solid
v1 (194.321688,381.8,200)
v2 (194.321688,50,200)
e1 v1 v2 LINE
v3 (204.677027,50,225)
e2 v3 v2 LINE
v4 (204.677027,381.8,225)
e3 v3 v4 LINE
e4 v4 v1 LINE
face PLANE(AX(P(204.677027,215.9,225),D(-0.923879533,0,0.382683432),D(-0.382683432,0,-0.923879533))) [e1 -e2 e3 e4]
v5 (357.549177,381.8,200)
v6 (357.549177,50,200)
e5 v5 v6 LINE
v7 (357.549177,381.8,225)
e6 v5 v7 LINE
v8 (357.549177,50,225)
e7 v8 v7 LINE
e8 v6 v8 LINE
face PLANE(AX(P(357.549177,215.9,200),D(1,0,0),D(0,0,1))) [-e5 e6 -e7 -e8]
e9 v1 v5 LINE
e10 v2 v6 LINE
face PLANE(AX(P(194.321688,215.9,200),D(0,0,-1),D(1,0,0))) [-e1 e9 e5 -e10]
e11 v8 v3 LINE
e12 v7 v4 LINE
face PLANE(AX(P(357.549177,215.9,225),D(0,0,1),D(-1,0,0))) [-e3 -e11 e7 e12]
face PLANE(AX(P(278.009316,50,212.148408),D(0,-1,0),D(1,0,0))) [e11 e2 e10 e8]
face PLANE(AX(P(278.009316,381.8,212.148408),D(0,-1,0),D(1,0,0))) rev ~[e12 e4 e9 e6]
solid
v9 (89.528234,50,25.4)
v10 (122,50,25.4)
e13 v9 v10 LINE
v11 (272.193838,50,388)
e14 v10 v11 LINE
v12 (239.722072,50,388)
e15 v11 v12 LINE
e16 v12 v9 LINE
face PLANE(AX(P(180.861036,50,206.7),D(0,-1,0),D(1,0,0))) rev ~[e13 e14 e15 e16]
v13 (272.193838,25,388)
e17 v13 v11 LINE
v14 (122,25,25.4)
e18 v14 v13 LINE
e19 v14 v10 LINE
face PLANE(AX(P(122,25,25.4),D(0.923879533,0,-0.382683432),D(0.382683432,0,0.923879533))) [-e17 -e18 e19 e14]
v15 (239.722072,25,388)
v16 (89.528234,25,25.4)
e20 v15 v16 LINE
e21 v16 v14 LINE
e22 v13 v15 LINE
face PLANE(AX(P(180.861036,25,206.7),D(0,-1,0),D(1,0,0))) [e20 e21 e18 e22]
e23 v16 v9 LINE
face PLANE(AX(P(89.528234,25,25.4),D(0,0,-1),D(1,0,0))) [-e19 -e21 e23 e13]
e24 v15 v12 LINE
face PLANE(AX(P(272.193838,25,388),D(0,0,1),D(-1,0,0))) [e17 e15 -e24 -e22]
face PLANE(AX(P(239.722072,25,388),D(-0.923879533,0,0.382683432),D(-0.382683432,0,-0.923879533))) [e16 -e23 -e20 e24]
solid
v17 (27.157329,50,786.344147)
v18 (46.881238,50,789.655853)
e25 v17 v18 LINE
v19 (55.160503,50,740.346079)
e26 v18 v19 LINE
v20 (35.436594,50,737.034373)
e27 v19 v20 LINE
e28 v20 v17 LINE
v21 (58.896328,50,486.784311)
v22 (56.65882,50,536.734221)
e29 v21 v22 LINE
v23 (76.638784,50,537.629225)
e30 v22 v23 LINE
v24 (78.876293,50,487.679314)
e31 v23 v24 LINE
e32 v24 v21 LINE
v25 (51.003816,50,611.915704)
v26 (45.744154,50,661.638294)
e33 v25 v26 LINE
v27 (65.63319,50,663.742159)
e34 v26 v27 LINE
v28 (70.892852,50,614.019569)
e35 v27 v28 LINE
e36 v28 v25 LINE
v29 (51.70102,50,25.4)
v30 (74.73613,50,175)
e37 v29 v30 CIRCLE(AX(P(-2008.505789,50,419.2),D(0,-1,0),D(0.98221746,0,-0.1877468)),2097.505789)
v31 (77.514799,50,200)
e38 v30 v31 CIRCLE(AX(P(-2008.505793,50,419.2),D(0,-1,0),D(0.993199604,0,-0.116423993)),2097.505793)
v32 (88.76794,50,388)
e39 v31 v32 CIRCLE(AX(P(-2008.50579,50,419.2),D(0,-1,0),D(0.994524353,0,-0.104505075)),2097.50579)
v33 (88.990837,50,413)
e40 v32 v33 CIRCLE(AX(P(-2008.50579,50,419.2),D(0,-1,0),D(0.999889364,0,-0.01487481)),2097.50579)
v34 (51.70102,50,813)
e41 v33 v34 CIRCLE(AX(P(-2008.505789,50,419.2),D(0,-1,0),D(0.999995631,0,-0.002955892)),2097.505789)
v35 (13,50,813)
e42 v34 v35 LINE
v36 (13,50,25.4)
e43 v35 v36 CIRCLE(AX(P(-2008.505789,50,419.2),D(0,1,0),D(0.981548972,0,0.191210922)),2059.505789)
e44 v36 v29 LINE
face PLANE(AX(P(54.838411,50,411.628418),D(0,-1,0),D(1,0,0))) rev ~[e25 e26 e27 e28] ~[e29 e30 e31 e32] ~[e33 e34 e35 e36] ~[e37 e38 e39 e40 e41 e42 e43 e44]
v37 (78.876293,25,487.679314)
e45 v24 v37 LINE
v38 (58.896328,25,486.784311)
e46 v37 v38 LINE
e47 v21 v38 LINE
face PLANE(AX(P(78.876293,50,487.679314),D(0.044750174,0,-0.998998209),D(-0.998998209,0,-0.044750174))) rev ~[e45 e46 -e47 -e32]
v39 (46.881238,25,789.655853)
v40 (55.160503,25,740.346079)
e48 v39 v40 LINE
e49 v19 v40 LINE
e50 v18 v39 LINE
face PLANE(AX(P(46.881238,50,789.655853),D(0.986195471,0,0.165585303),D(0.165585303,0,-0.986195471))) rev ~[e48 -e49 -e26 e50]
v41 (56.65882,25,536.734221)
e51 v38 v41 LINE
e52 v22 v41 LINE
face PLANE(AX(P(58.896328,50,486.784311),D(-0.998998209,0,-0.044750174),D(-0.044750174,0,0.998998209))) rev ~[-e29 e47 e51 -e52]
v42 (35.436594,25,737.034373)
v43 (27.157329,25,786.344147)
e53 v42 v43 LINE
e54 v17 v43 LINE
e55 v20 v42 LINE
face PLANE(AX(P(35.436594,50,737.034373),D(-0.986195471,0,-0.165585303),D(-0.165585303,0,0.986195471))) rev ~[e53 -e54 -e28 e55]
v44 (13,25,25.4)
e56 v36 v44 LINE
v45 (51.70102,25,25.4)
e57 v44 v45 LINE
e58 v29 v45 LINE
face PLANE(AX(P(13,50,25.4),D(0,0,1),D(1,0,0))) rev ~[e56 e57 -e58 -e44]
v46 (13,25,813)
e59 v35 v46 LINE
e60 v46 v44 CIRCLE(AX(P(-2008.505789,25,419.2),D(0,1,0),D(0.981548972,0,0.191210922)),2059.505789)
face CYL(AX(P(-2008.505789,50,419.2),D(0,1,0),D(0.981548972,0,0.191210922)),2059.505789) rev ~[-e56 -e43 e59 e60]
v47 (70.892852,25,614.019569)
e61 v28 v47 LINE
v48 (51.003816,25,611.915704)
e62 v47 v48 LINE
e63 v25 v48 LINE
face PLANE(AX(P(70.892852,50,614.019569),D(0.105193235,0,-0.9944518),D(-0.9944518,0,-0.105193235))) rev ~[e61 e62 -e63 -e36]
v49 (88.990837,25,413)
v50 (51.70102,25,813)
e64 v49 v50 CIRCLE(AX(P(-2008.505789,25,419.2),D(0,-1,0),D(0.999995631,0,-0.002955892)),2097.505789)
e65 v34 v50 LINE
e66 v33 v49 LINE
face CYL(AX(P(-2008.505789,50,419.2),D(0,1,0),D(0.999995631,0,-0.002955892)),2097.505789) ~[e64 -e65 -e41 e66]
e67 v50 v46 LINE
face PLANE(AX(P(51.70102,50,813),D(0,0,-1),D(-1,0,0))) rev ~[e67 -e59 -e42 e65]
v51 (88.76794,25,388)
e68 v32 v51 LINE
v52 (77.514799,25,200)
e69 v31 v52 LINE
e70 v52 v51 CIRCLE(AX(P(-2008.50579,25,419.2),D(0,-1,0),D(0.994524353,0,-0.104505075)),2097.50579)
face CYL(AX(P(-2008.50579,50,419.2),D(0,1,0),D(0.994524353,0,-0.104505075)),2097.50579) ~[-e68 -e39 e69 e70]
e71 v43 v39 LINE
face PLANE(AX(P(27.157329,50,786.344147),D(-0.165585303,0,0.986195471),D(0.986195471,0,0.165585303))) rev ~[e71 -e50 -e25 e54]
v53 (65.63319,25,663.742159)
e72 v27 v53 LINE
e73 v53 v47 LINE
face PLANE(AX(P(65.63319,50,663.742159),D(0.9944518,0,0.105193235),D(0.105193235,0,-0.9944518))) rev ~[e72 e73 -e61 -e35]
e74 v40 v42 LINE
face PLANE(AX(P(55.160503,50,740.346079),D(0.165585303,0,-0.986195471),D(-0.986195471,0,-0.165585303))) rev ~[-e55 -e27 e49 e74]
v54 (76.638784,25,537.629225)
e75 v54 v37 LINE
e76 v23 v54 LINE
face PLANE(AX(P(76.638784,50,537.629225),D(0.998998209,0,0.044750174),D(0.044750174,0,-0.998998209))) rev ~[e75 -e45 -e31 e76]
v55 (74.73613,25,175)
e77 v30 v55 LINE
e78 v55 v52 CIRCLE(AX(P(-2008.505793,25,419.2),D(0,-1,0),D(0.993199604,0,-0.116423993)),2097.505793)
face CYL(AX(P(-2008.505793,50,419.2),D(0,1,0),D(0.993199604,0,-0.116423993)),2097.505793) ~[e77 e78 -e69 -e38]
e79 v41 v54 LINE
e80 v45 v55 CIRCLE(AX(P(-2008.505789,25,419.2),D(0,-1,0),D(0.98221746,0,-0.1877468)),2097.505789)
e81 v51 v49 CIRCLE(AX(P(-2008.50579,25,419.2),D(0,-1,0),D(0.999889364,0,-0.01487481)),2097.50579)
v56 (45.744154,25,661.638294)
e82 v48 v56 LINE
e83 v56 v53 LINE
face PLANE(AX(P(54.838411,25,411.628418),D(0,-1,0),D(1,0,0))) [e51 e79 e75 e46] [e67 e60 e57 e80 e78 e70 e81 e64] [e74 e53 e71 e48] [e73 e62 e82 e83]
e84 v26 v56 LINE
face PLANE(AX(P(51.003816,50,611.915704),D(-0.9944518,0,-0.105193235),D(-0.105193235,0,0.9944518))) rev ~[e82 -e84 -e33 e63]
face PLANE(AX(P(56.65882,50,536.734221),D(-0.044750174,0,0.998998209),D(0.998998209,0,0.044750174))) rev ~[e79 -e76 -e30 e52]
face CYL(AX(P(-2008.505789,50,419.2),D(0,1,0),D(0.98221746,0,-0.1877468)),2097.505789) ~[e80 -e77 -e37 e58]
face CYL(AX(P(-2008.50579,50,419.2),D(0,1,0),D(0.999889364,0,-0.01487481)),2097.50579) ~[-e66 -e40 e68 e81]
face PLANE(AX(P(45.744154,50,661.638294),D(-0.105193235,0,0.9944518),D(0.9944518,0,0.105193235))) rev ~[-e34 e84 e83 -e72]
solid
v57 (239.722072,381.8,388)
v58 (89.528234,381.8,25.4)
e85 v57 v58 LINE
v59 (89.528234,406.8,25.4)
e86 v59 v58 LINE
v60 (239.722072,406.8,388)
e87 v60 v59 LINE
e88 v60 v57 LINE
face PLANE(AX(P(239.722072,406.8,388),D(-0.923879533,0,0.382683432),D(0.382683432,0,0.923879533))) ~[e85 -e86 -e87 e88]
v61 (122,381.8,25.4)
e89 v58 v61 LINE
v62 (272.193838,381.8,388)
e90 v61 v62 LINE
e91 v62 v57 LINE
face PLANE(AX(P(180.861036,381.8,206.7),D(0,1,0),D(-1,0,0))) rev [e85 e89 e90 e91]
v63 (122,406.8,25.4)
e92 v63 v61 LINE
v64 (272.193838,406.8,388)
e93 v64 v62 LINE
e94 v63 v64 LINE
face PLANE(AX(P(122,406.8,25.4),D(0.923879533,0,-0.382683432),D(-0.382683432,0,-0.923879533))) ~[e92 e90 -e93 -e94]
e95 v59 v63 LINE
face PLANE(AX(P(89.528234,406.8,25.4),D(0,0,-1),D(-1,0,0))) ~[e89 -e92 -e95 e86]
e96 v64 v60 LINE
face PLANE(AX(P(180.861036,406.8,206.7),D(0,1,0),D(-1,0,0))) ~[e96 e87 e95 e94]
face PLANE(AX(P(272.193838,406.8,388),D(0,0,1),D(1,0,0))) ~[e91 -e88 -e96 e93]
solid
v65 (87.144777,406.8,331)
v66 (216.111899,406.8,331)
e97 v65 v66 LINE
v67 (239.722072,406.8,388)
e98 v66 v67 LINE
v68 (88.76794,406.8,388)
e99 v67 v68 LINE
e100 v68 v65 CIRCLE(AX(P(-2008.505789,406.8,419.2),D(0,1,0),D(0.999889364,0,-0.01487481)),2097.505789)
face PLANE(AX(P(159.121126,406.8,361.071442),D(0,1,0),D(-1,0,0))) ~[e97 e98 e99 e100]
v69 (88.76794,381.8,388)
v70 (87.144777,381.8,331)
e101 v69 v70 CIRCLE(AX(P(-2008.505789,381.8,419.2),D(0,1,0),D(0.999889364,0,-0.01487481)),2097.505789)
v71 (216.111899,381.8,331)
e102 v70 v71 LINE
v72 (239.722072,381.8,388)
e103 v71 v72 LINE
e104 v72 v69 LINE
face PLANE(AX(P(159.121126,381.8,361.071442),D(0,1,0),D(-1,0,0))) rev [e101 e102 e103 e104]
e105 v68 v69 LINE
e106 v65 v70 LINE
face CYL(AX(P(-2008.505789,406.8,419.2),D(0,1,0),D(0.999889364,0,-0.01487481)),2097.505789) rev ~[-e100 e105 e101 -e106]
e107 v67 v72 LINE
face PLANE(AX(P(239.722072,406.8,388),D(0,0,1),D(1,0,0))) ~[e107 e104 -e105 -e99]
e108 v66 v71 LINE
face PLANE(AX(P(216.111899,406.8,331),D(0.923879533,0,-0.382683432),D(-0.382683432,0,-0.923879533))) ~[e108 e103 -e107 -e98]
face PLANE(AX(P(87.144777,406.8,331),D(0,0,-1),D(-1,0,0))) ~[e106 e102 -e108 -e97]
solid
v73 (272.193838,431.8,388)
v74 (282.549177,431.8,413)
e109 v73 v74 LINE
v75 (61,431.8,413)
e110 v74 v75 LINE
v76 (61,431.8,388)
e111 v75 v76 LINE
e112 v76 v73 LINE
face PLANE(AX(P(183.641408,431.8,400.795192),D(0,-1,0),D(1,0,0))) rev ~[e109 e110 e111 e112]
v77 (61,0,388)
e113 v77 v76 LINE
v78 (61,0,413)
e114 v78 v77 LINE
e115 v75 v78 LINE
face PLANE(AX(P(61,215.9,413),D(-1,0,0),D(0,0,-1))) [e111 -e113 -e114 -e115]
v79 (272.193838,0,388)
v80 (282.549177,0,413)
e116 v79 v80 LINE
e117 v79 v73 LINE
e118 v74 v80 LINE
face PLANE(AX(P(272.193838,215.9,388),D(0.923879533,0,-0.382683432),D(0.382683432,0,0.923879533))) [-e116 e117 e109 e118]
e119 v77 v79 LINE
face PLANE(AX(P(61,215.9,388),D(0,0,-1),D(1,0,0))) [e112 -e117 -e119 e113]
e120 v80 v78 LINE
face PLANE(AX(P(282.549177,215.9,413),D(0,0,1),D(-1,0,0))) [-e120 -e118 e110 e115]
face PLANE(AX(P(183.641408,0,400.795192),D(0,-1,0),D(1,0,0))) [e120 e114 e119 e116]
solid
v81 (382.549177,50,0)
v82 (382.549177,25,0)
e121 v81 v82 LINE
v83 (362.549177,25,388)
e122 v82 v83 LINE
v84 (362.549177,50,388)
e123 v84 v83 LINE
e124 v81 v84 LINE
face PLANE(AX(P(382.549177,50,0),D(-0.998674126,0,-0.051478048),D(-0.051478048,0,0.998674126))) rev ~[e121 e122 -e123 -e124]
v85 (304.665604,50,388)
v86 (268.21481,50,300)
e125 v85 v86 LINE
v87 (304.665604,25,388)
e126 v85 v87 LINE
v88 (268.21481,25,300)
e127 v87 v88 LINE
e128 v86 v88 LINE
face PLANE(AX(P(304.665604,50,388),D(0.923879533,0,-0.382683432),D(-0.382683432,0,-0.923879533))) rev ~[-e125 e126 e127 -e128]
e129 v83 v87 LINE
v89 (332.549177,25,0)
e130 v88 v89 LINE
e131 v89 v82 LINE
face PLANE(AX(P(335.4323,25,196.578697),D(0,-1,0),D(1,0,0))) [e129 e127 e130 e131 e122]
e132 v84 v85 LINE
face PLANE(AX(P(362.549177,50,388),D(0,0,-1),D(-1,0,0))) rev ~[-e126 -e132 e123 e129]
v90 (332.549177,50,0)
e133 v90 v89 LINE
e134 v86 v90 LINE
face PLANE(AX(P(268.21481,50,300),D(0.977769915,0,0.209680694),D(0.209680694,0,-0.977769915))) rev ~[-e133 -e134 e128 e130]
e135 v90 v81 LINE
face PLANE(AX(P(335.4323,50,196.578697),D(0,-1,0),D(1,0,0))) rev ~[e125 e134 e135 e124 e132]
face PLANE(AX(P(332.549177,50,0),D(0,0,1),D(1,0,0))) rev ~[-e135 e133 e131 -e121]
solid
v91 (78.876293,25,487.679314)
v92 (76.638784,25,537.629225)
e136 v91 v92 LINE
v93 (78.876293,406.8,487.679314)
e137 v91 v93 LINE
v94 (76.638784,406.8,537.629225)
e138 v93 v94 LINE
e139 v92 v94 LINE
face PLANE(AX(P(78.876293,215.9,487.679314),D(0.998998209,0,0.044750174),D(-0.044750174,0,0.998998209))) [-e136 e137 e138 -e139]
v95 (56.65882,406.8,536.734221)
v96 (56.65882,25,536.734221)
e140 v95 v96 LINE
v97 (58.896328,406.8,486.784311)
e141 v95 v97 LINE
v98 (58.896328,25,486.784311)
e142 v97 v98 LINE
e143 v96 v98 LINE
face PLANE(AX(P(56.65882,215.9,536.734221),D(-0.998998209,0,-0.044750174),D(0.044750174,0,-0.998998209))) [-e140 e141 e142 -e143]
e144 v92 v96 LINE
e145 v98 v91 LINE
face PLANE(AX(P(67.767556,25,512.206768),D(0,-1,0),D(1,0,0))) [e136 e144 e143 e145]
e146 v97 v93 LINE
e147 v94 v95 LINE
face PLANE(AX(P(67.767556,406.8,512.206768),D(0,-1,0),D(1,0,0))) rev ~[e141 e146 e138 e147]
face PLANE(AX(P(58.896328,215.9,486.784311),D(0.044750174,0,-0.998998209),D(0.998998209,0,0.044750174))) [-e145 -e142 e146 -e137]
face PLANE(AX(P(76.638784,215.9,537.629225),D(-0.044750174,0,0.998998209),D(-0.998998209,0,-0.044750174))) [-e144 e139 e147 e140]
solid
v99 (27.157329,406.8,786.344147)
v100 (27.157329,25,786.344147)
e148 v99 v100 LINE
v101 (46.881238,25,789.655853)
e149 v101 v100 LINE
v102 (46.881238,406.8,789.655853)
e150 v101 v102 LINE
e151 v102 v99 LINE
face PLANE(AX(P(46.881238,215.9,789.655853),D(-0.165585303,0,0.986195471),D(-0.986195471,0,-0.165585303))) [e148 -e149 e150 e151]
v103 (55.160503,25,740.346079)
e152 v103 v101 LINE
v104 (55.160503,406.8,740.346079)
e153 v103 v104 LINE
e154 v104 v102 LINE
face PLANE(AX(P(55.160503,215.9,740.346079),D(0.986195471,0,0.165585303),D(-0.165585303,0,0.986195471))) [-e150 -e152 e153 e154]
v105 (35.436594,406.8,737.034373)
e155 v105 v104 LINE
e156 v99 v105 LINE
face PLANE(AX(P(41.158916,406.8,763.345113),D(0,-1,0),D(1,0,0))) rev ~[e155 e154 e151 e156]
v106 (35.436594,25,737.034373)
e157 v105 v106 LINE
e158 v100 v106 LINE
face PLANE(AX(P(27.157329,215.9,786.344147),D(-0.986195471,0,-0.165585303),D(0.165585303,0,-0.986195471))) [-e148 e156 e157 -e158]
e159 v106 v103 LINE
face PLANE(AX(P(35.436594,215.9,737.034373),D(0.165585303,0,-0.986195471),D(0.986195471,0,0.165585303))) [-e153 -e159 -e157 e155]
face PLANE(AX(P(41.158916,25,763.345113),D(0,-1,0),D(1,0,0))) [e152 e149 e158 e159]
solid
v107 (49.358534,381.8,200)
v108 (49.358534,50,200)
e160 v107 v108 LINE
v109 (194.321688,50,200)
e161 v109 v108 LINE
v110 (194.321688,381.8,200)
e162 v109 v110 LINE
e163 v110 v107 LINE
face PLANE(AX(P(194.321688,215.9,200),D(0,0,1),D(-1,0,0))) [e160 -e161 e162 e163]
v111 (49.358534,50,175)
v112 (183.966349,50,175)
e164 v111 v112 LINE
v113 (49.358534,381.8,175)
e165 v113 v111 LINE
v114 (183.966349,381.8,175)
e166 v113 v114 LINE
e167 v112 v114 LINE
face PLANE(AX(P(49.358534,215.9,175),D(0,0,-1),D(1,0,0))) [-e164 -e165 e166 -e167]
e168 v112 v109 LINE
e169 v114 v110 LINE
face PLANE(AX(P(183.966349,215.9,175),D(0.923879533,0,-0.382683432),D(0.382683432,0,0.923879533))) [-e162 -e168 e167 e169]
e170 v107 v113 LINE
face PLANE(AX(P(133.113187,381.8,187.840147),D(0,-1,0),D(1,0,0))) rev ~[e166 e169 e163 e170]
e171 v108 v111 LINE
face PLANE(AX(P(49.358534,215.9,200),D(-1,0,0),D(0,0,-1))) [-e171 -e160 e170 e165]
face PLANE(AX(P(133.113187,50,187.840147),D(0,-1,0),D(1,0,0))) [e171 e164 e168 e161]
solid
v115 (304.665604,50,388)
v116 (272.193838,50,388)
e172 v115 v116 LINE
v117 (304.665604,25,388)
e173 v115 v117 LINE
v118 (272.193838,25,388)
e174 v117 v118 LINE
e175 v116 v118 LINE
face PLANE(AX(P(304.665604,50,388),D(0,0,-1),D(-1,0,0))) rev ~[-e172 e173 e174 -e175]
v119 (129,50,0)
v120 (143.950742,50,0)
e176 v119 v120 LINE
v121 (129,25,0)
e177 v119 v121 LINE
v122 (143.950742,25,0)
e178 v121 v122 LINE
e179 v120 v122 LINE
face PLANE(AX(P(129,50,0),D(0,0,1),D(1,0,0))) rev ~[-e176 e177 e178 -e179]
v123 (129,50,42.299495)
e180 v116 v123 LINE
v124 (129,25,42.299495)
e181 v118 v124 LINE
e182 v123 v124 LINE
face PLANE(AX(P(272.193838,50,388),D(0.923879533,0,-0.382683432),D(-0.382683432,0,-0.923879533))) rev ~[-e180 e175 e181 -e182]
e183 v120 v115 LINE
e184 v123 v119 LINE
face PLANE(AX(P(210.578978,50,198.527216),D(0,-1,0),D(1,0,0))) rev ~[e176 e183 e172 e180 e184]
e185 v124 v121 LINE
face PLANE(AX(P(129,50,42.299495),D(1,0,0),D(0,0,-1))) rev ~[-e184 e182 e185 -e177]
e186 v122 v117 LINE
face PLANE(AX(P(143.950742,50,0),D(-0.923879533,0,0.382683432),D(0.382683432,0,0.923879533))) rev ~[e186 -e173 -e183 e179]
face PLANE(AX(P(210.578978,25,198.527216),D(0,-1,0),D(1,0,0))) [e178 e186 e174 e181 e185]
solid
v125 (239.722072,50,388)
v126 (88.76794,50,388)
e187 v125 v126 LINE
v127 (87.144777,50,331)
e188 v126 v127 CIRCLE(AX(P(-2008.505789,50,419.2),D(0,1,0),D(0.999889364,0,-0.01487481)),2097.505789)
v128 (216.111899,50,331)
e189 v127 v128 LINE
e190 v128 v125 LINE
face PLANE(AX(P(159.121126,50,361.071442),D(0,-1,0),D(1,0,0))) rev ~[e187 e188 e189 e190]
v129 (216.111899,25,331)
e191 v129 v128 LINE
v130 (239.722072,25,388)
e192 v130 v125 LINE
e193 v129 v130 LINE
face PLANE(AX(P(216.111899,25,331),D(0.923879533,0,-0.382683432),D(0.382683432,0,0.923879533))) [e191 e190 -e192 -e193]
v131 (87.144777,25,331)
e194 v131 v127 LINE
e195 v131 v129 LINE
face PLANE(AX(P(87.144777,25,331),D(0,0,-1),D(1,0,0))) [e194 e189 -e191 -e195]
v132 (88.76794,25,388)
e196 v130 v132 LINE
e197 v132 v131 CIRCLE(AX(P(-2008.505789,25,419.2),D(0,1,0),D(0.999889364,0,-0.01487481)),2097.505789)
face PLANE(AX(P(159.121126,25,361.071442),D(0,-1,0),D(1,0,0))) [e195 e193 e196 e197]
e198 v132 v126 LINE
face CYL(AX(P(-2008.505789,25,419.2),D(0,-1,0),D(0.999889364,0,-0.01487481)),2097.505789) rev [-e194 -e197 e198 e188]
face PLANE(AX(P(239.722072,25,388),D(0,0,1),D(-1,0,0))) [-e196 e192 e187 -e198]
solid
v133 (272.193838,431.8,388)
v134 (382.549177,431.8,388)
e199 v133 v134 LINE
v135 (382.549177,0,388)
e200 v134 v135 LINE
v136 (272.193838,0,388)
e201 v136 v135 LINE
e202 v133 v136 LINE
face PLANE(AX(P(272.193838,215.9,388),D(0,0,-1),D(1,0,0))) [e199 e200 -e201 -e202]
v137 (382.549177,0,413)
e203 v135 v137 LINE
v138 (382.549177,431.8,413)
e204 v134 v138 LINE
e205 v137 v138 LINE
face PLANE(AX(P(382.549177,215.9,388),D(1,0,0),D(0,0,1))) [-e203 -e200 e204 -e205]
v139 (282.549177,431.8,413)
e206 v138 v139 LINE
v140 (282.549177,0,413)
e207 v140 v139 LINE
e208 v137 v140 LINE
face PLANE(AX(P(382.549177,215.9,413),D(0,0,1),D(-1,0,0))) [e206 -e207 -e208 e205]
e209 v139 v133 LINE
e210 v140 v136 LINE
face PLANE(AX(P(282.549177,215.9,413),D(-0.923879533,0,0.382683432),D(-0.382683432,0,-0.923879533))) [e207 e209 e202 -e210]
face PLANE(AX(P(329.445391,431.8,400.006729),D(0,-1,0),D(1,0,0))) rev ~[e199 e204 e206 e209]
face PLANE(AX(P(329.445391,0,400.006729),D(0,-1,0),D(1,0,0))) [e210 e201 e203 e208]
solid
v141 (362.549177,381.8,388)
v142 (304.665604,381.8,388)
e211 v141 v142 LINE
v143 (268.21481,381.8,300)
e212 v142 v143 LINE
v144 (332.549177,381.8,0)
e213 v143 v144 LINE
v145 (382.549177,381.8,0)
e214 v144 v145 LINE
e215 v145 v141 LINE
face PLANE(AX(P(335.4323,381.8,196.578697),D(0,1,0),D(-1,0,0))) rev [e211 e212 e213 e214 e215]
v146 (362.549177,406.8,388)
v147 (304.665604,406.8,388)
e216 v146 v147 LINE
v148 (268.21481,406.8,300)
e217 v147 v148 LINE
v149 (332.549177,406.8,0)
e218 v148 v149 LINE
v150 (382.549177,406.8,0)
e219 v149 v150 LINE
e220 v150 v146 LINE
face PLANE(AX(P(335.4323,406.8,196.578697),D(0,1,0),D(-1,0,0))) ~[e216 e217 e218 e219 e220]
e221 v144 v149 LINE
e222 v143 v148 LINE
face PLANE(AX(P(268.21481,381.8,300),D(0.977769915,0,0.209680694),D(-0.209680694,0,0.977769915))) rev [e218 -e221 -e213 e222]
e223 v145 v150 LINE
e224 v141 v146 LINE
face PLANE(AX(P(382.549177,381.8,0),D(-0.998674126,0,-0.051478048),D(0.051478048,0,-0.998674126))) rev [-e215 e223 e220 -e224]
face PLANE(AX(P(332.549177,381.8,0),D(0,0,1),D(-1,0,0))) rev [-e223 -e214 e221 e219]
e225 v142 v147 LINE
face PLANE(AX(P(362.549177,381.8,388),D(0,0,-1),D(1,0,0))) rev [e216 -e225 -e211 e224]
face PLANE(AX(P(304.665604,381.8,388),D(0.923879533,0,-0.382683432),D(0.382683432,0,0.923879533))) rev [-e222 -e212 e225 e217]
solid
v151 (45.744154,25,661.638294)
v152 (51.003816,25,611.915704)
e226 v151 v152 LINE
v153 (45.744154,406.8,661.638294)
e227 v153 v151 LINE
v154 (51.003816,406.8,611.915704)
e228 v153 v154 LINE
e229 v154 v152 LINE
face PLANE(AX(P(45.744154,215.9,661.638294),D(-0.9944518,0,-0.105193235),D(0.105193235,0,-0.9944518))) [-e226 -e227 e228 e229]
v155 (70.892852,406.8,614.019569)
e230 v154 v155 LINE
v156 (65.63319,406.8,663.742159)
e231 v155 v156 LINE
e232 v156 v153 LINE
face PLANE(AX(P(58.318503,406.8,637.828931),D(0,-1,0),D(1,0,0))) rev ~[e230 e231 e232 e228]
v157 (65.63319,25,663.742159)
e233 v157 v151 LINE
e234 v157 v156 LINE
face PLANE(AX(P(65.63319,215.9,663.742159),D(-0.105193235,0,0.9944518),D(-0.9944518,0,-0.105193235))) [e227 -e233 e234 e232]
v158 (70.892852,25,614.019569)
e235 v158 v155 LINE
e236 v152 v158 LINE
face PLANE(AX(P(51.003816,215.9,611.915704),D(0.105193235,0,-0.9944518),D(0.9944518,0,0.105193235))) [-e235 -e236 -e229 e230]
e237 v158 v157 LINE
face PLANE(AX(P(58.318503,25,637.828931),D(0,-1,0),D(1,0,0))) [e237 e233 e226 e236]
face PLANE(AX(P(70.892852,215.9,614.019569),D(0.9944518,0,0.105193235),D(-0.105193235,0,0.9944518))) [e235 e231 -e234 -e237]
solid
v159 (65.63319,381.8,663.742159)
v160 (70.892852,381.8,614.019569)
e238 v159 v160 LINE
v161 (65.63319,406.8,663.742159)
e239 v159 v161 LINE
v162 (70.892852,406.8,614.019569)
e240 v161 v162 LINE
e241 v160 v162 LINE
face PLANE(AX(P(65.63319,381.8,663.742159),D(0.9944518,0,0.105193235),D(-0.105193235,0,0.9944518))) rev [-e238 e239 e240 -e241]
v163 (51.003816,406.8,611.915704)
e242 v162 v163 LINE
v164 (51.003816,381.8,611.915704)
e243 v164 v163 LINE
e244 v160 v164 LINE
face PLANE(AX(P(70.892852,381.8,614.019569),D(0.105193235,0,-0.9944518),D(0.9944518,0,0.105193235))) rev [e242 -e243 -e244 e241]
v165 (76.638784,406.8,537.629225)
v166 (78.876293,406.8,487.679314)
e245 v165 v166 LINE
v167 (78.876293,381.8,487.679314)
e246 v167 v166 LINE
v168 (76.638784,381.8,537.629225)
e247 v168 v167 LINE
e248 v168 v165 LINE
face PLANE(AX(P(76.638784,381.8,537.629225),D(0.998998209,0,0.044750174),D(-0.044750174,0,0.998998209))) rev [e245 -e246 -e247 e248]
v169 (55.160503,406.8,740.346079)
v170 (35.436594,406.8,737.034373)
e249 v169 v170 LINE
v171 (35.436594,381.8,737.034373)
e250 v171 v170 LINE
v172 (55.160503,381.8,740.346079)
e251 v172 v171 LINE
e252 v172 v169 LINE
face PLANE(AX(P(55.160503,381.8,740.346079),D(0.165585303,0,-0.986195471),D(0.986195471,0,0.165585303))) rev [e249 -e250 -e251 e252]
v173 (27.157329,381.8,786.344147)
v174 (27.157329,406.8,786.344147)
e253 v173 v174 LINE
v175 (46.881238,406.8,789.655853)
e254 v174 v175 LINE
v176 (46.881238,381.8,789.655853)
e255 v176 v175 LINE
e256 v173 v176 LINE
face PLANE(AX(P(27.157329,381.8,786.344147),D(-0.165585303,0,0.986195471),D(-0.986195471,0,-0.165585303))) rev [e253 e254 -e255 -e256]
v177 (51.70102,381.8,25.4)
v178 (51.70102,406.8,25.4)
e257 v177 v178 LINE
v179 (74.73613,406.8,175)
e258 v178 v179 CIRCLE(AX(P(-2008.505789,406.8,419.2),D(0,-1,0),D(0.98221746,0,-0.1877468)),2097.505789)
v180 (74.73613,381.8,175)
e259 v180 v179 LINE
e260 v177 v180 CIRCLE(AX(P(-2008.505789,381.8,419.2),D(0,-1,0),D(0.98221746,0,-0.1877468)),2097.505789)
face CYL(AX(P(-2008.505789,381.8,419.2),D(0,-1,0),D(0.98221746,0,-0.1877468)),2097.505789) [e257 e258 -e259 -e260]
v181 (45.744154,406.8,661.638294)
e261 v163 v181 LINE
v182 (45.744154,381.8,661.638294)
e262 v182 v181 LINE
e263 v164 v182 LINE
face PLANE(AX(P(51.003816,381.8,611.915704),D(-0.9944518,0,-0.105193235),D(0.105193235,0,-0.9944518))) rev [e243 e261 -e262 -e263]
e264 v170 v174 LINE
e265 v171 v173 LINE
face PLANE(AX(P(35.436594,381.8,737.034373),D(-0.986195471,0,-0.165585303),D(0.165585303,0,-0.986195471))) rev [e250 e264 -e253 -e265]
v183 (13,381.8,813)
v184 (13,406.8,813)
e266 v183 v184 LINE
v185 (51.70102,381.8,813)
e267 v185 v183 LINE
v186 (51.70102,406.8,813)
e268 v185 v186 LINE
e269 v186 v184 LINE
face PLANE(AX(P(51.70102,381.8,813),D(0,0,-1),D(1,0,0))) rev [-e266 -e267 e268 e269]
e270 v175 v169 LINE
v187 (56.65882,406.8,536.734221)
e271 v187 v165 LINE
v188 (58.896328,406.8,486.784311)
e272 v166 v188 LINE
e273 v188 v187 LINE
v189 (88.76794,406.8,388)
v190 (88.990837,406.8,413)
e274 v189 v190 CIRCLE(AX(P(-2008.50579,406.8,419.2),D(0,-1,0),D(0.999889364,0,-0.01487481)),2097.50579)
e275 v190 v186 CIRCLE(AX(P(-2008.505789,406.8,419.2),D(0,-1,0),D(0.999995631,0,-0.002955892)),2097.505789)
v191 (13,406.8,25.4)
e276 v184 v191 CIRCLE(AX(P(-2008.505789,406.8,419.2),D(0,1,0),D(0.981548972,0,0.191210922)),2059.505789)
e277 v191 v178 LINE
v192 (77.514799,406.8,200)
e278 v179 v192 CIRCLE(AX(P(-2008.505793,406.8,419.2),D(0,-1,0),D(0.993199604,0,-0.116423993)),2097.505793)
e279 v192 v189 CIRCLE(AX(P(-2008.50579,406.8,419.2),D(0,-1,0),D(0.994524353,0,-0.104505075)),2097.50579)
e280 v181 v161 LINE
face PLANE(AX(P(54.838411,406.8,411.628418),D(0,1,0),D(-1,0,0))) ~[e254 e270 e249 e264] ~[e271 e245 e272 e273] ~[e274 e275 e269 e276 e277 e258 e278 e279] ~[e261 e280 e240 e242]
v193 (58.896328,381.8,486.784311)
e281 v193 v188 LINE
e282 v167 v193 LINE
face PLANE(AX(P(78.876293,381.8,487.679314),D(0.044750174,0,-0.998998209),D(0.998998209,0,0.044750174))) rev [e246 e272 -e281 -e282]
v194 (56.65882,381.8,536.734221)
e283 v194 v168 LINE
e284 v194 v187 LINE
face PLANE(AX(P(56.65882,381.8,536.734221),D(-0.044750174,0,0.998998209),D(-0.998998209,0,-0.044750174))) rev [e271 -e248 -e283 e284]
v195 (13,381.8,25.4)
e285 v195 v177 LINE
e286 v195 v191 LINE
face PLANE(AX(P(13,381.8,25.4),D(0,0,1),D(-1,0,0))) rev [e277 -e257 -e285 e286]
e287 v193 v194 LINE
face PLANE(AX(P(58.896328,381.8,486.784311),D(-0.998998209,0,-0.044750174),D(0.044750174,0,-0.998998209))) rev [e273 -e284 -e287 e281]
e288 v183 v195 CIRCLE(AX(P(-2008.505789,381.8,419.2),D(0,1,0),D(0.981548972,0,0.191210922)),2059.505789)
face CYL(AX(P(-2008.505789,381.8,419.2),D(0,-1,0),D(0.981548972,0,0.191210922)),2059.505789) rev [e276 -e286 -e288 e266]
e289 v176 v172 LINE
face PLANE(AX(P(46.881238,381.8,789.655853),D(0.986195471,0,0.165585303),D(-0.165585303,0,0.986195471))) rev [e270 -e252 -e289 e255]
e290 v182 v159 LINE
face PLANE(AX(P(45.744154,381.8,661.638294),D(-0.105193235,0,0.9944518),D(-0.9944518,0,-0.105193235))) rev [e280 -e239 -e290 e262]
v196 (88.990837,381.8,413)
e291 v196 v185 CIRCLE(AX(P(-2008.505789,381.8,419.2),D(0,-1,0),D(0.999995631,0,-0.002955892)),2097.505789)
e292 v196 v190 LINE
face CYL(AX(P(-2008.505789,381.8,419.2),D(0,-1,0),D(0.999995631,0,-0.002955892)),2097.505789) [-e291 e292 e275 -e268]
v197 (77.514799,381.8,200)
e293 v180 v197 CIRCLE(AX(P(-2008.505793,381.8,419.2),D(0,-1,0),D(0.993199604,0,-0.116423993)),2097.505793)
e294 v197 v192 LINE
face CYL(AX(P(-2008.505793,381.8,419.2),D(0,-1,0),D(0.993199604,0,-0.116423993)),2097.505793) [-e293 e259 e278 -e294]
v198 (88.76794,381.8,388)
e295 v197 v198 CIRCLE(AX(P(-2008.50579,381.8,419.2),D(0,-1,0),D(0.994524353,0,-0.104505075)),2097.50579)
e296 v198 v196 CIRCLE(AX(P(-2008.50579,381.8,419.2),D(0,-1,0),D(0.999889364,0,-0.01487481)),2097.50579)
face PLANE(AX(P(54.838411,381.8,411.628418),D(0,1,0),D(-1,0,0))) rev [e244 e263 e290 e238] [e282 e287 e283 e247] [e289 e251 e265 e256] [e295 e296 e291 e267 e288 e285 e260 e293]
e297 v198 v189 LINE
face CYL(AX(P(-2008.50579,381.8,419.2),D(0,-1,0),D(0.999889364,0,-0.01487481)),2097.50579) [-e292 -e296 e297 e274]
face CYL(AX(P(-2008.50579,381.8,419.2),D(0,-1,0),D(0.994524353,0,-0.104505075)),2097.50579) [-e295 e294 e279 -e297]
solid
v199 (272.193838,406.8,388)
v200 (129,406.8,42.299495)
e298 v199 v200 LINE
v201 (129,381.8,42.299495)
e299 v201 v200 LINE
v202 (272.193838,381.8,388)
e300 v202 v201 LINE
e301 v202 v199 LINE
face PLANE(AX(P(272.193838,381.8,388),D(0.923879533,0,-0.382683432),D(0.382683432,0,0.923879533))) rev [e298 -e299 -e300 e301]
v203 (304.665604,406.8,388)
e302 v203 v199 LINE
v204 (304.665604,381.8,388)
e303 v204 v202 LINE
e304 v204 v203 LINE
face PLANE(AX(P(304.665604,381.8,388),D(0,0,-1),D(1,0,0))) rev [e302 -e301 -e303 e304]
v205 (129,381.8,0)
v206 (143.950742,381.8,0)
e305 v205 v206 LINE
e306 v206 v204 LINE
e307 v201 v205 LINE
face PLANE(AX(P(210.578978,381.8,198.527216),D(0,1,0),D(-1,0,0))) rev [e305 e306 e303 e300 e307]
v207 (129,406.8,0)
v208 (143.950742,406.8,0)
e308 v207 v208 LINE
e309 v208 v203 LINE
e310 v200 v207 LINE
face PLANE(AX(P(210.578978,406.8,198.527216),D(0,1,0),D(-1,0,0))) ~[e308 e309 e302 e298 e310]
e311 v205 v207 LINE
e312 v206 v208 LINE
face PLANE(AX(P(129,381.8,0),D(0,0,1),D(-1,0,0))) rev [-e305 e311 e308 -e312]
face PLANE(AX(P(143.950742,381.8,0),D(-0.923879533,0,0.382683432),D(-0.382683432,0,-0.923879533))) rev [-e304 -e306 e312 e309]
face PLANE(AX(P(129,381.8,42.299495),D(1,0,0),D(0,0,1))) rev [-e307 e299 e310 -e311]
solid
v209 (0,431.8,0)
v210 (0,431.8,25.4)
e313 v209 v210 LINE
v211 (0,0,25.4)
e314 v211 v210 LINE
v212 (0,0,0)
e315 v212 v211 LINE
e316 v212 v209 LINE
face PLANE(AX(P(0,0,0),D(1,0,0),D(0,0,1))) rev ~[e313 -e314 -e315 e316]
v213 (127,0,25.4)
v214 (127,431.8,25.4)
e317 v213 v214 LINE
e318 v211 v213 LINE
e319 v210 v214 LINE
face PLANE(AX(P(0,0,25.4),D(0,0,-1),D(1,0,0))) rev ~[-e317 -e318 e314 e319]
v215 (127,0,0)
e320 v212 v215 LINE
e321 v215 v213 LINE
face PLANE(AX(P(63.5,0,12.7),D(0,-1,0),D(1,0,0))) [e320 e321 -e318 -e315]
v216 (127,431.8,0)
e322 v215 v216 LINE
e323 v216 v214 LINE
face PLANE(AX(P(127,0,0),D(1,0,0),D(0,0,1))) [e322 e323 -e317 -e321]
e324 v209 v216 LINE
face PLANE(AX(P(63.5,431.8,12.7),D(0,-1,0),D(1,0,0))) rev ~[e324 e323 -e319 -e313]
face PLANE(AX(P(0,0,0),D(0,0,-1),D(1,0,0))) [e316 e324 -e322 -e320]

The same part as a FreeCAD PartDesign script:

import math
import FreeCAD as App
import Part
import Sketcher
from FreeCAD import Vector
Q = App.Units.Quantity


def add_polygon(sketch, points):
    """Adds a closed chain of lines whose ends are joined by coincident constraints."""
    first, n = sketch.GeometryCount, len(points)
    for a, b in zip(points, points[1:] + points[:1]):
        sketch.addGeometry(Part.LineSegment(App.Vector(*a, 0), App.Vector(*b, 0)), False)
    for i in range(n):
        sketch.addConstraint(Sketcher.Constraint("Coincident", first + i, 2, first + (i + 1) % n, 1))

doc = App.newDocument("Part")
body = doc.addObject("PartDesign::Body", "Body")

sketch1 = doc.addObject("Sketcher::SketchObject", "Sketch")
body.addObject(sketch1)
sketch1.AttachmentSupport = (doc.XZ_Plane, [""])
sketch1.MapMode = "FlatFace"
add_polygon(sketch1, [(0, 25), (0, 0), (127, 0), (127, 25)])
sketch1.addConstraint(Sketcher.Constraint("Vertical", 0))
sketch1.addConstraint(Sketcher.Constraint("Horizontal", 1))
sketch1.addConstraint(Sketcher.Constraint("Vertical", 2))
sketch1.addConstraint(Sketcher.Constraint("Horizontal", 3))
sketch1.addConstraint(Sketcher.Constraint("Coincident", 0, 2, -1, 1))
sketch1.addConstraint(Sketcher.Constraint("DistanceX", 1, 1, 1, 2, Q("127 mm")))
sketch1.addConstraint(Sketcher.Constraint("DistanceY", 0, 2, 0, 1, Q("25.4 mm")))
pad1 = doc.addObject("PartDesign::Pad", "Pad")
body.addObject(pad1)
pad1.Profile = sketch1
pad1.Length = 431.8
pad1.Reversed = True
body2 = doc.addObject("PartDesign::Body", "Body001")

sketch2 = doc.addObject("Sketcher::SketchObject", "Sketch001")
body2.addObject(sketch2)
sketch2.AttachmentSupport = (doc.getObject("XZ_Plane001"), [""])
sketch2.MapMode = "FlatFace"
sketch2.AttachmentOffset = App.Placement(Vector(0, 0, -50), App.Rotation())
sketch2.addGeometry(Part.ArcOfCircle(Part.Circle(Vector(-2009, 419, 0), Vector(0, 0, 1), 2098), math.radians(-6), math.radians(-0.85)), False)
sketch2.addGeometry(Part.ArcOfCircle(Part.Circle(Vector(-2009, 419, 0), Vector(0, 0, 1), 2098), math.radians(-0.85), math.radians(-0.17)), False)
sketch2.addGeometry(Part.ArcOfCircle(Part.Circle(Vector(-2009, 419, 0), Vector(0, 0, 1), 2098), math.radians(-0.17), math.radians(10.82)), False)
sketch2.addGeometry(Part.LineSegment(Vector(52, 813, 0), Vector(13, 813, 0)), False)
sketch2.addGeometry(Part.ArcOfCircle(Part.Circle(Vector(-2009, 419, 0), Vector(0, 0, 1), 2060), math.radians(-11), math.radians(11)), False)
sketch2.addGeometry(Part.LineSegment(Vector(13, 25, 0), Vector(52, 25, 0)), False)
sketch2.addGeometry(Part.ArcOfCircle(Part.Circle(Vector(-2009, 419, 0), Vector(0, 0, 1), 2098), math.radians(-10.82), math.radians(-6.69)), False)
sketch2.addGeometry(Part.ArcOfCircle(Part.Circle(Vector(-2009, 419, 0), Vector(0, 0, 1), 2098), math.radians(-6.69), math.radians(-6)), False)
add_polygon(sketch2, [(79, 488), (59, 487), (57, 537), (77, 538)])
add_polygon(sketch2, [(71, 614), (51, 612), (46, 662), (66, 664)])
add_polygon(sketch2, [(55, 740), (35, 737), (27, 786), (47, 790)])
sketch2.addConstraint(Sketcher.Constraint("Coincident", 0, 2, 1, 1))
sketch2.addConstraint(Sketcher.Constraint("Coincident", 1, 2, 2, 1))
sketch2.addConstraint(Sketcher.Constraint("Coincident", 2, 2, 3, 1))
sketch2.addConstraint(Sketcher.Constraint("Coincident", 3, 2, 4, 2))
sketch2.addConstraint(Sketcher.Constraint("Coincident", 4, 1, 5, 1))
sketch2.addConstraint(Sketcher.Constraint("Coincident", 5, 2, 6, 1))
sketch2.addConstraint(Sketcher.Constraint("Coincident", 6, 2, 7, 1))
sketch2.addConstraint(Sketcher.Constraint("Coincident", 7, 2, 0, 1))
sketch2.addConstraint(Sketcher.Constraint("Horizontal", 3))
sketch2.addConstraint(Sketcher.Constraint("Horizontal", 5))
sketch2.addConstraint(Sketcher.Constraint("Coincident", 1, 3, 0, 3))
sketch2.addConstraint(Sketcher.Constraint("Coincident", 2, 3, 0, 3))
sketch2.addConstraint(Sketcher.Constraint("Coincident", 4, 3, 0, 3))
sketch2.addConstraint(Sketcher.Constraint("Coincident", 6, 3, 0, 3))
sketch2.addConstraint(Sketcher.Constraint("Coincident", 7, 3, 0, 3))
sketch2.addConstraint(Sketcher.Constraint("Perpendicular", 8, 9))
sketch2.addConstraint(Sketcher.Constraint("Perpendicular", 9, 10))
sketch2.addConstraint(Sketcher.Constraint("Perpendicular", 10, 11))
sketch2.addConstraint(Sketcher.Constraint("Perpendicular", 12, 13))
sketch2.addConstraint(Sketcher.Constraint("Perpendicular", 13, 14))
sketch2.addConstraint(Sketcher.Constraint("Perpendicular", 14, 15))
sketch2.addConstraint(Sketcher.Constraint("Perpendicular", 16, 17))
sketch2.addConstraint(Sketcher.Constraint("Perpendicular", 17, 18))
sketch2.addConstraint(Sketcher.Constraint("Perpendicular", 18, 19))
sketch2.addConstraint(Sketcher.Constraint("Equal", 3, 5))
sketch2.addConstraint(Sketcher.Constraint("Equal", 10, 12))
sketch2.addConstraint(Sketcher.Constraint("Equal", 11, 13))
sketch2.addConstraint(Sketcher.Constraint("Equal", 14, 16))
sketch2.addConstraint(Sketcher.Constraint("Equal", 15, 17))
sketch2.addConstraint(Sketcher.Constraint("Distance", 8, Q("20 mm")))
sketch2.addConstraint(Sketcher.Constraint("Distance", 9, Q("50 mm")))
sketch2.addConstraint(Sketcher.Constraint("DistanceY", -1, 1, 0, 2, Q("388 mm")))
sketch2.addConstraint(Sketcher.Constraint("DistanceY", -1, 1, 1, 2, Q("413 mm")))
sketch2.addConstraint(Sketcher.Constraint("DistanceX", -1, 1, 3, 2, Q("13 mm")))
sketch2.addConstraint(Sketcher.Constraint("DistanceY", -1, 1, 3, 2, Q("813 mm")))
sketch2.addConstraint(Sketcher.Constraint("DistanceY", -1, 1, 6, 2, Q("175 mm")))
sketch2.addConstraint(Sketcher.Constraint("DistanceY", -1, 1, 7, 2, Q("200 mm")))
sketch2.addConstraint(Sketcher.Constraint("DistanceY", -1, 1, 0, 3, Q("419.2 mm")))
sketch2.addConstraint(Sketcher.Constraint("Radius", 0, Q("2097.50579 mm")))
sketch2.addConstraint(Sketcher.Constraint("Radius", 4, Q("2059.505789 mm")))
sketch2.addConstraint(Sketcher.Constraint("DistanceX", -1, 1, 8, 2, Q("58.896328 mm")))
sketch2.addConstraint(Sketcher.Constraint("DistanceY", -1, 1, 8, 2, Q("486.784311 mm")))
sketch2.addConstraint(Sketcher.Constraint("DistanceX", -1, 1, 9, 2, Q("56.65882 mm")))
sketch2.addConstraint(Sketcher.Constraint("DistanceX", -1, 1, 14, 2, Q("65.63319 mm")))
sketch2.addConstraint(Sketcher.Constraint("DistanceY", -1, 1, 14, 2, Q("663.742159 mm")))
sketch2.addConstraint(Sketcher.Constraint("DistanceX", -1, 1, 15, 2, Q("70.892852 mm")))
sketch2.addConstraint(Sketcher.Constraint("DistanceX", -1, 1, 17, 2, Q("27.157329 mm")))
sketch2.addConstraint(Sketcher.Constraint("DistanceX", -1, 1, 18, 2, Q("46.881238 mm")))
sketch2.addConstraint(Sketcher.Constraint("DistanceY", -1, 1, 19, 2, Q("740.346079 mm")))
pad2 = doc.addObject("PartDesign::Pad", "Pad001")
body2.addObject(pad2)
pad2.Profile = sketch2
pad2.Length = 25
body3 = doc.addObject("PartDesign::Body", "Body002")

sketch3 = doc.addObject("Sketcher::SketchObject", "Sketch002")
body3.addObject(sketch3)
sketch3.AttachmentSupport = (doc.getObject("XZ_Plane002"), [""])
sketch3.MapMode = "FlatFace"
sketch3.AttachmentOffset = App.Placement(Vector(0, 0, -215.9), App.Rotation())
add_polygon(sketch3, [(272, 388), (283, 413), (61, 413), (61, 388)])
sketch3.addConstraint(Sketcher.Constraint("Horizontal", 1))
sketch3.addConstraint(Sketcher.Constraint("Vertical", 2))
sketch3.addConstraint(Sketcher.Constraint("Horizontal", 3))
sketch3.addConstraint(Sketcher.Constraint("DistanceY", 2, 2, 2, 1, Q("25 mm")))
sketch3.addConstraint(Sketcher.Constraint("DistanceY", -1, 1, 0, 2, Q("413 mm")))
sketch3.addConstraint(Sketcher.Constraint("DistanceX", -1, 1, 1, 2, Q("61 mm")))
sketch3.addConstraint(Sketcher.Constraint("Angle", 0, Q("67.5 deg")))
sketch3.addConstraint(Sketcher.Constraint("DistanceX", 1, 2, 1, 1, Q("221.549177 mm")))
pad3 = doc.addObject("PartDesign::Pad", "Pad002")
body3.addObject(pad3)
pad3.Profile = sketch3
pad3.Type = "TwoLengths"
pad3.Length = 215.9
pad3.Length2 = 215.9
body4 = doc.addObject("PartDesign::Body", "Body003")

sketch4 = doc.addObject("Sketcher::SketchObject", "Sketch003")
body4.addObject(sketch4)
sketch4.AttachmentSupport = (doc.getObject("XZ_Plane003"), [""])
sketch4.MapMode = "FlatFace"
sketch4.AttachmentOffset = App.Placement(Vector(0, 0, -25), App.Rotation())
add_polygon(sketch4, [(122, 25), (272, 388), (240, 388), (90, 25)])
sketch4.addConstraint(Sketcher.Constraint("Horizontal", 1))
sketch4.addConstraint(Sketcher.Constraint("Horizontal", 3))
sketch4.addConstraint(Sketcher.Constraint("Parallel", 0, 2))
sketch4.addConstraint(Sketcher.Constraint("DistanceY", -1, 1, 0, 2, Q("388 mm")))
sketch4.addConstraint(Sketcher.Constraint("DistanceX", -1, 1, 3, 2, Q("122 mm")))
sketch4.addConstraint(Sketcher.Constraint("Angle", 0, Q("67.5 deg")))
sketch4.addConstraint(Sketcher.Constraint("DistanceY", -1, 1, 2, 2, Q("25.4 mm")))
sketch4.addConstraint(Sketcher.Constraint("DistanceX", 1, 2, 1, 1, Q("32.471766 mm")))
pad4 = doc.addObject("PartDesign::Pad", "Pad003")
body4.addObject(pad4)
pad4.Profile = sketch4
pad4.Length = 25
pad4.Reversed = True
body5 = doc.addObject("PartDesign::Body", "Body004")

sketch5 = doc.addObject("Sketcher::SketchObject", "Sketch004")
body5.addObject(sketch5)
sketch5.AttachmentSupport = (doc.getObject("XZ_Plane004"), [""])
sketch5.MapMode = "FlatFace"
sketch5.AttachmentOffset = App.Placement(Vector(0, 0, -25), App.Rotation())
sketch5.addGeometry(Part.ArcOfCircle(Part.Circle(Vector(-2009, 419, 0), Vector(0, 0, 1), 2098), math.radians(-2.41), math.radians(-0.85)), False)
sketch5.addGeometry(Part.LineSegment(Vector(87, 331, 0), Vector(216, 331, 0)), False)
sketch5.addGeometry(Part.LineSegment(Vector(216, 331, 0), Vector(240, 388, 0)), False)
sketch5.addGeometry(Part.LineSegment(Vector(240, 388, 0), Vector(89, 388, 0)), False)
sketch5.addConstraint(Sketcher.Constraint("Coincident", 0, 1, 1, 1))
sketch5.addConstraint(Sketcher.Constraint("Coincident", 1, 2, 2, 1))
sketch5.addConstraint(Sketcher.Constraint("Coincident", 2, 2, 3, 1))
sketch5.addConstraint(Sketcher.Constraint("Coincident", 3, 2, 0, 2))
sketch5.addConstraint(Sketcher.Constraint("Horizontal", 1))
sketch5.addConstraint(Sketcher.Constraint("Horizontal", 3))
sketch5.addConstraint(Sketcher.Constraint("DistanceY", -1, 1, 1, 2, Q("331 mm")))
sketch5.addConstraint(Sketcher.Constraint("DistanceY", -1, 1, 2, 2, Q("388 mm")))
sketch5.addConstraint(Sketcher.Constraint("Angle", 2, Q("67.5 deg")))
sketch5.addConstraint(Sketcher.Constraint("DistanceY", -1, 1, 0, 3, Q("419.2 mm")))
sketch5.addConstraint(Sketcher.Constraint("Radius", 0, Q("2097.505789 mm")))
sketch5.addConstraint(Sketcher.Constraint("DistanceX", 1, 1, 1, 2, Q("128.967122 mm")))
sketch5.addConstraint(Sketcher.Constraint("DistanceX", -1, 1, 1, 2, Q("216.111899 mm")))
pad5 = doc.addObject("PartDesign::Pad", "Pad004")
body5.addObject(pad5)
pad5.Profile = sketch5
pad5.Length = 25
pad5.Reversed = True
body6 = doc.addObject("PartDesign::Body", "Body005")
doc.recompute()

mirroring = doc.addObject("Part::Mirroring", "Mirroring")
mirroring.Source = body5
mirroring.Base = Vector(0, 215.9, 0)
mirroring.Normal = Vector(0, -1, 0)
body6.BaseFeature = mirroring
doc.recompute()
body7 = doc.addObject("PartDesign::Body", "Body006")
doc.recompute()

mirroring2 = doc.addObject("Part::Mirroring", "Mirroring001")
mirroring2.Source = body4
mirroring2.Base = Vector(0, 215.9, 0)
mirroring2.Normal = Vector(0, -1, 0)
body7.BaseFeature = mirroring2
doc.recompute()
body8 = doc.addObject("PartDesign::Body", "Body007")
doc.recompute()

mirroring3 = doc.addObject("Part::Mirroring", "Mirroring002")
mirroring3.Source = body2
mirroring3.Base = Vector(0, 215.9, 0)
mirroring3.Normal = Vector(0, -1, 0)
body8.BaseFeature = mirroring3
doc.recompute()
body9 = doc.addObject("PartDesign::Body", "Body008")

sketch6 = doc.addObject("Sketcher::SketchObject", "Sketch005")
body9.addObject(sketch6)
sketch6.AttachmentSupport = (doc.getObject("XZ_Plane008"), [""])
sketch6.MapMode = "FlatFace"
sketch6.AttachmentOffset = App.Placement(Vector(0, 0, -215.9), App.Rotation())
add_polygon(sketch6, [(194, 200), (49, 200), (49, 175), (184, 175)])
sketch6.addConstraint(Sketcher.Constraint("Horizontal", 0))
sketch6.addConstraint(Sketcher.Constraint("Vertical", 1))
sketch6.addConstraint(Sketcher.Constraint("Horizontal", 2))
sketch6.addConstraint(Sketcher.Constraint("DistanceY", 1, 2, 1, 1, Q("25 mm")))
sketch6.addConstraint(Sketcher.Constraint("DistanceY", -1, 1, 0, 2, Q("200 mm")))
sketch6.addConstraint(Sketcher.Constraint("Angle", 3, Q("67.5 deg")))
sketch6.addConstraint(Sketcher.Constraint("DistanceX", 0, 2, 0, 1, Q("144.963154 mm")))
sketch6.addConstraint(Sketcher.Constraint("DistanceX", -1, 1, 2, 2, Q("183.966349 mm")))
pad6 = doc.addObject("PartDesign::Pad", "Pad005")
body9.addObject(pad6)
pad6.Profile = sketch6
pad6.Type = "TwoLengths"
pad6.Length = 165.9
pad6.Length2 = 165.9
body10 = doc.addObject("PartDesign::Body", "Body009")

sketch7 = doc.addObject("Sketcher::SketchObject", "Sketch006")
body10.addObject(sketch7)
sketch7.AttachmentSupport = (doc.getObject("XZ_Plane009"), [""])
sketch7.MapMode = "FlatFace"
sketch7.AttachmentOffset = App.Placement(Vector(0, 0, -215.9), App.Rotation())
add_polygon(sketch7, [(47, 790), (27, 786), (35, 737), (55, 740)])
sketch7.addConstraint(Sketcher.Constraint("Perpendicular", 0, 1))
sketch7.addConstraint(Sketcher.Constraint("Perpendicular", 1, 2))
sketch7.addConstraint(Sketcher.Constraint("Perpendicular", 2, 3))
sketch7.addConstraint(Sketcher.Constraint("Distance", 0, Q("20 mm")))
sketch7.addConstraint(Sketcher.Constraint("Distance", 1, Q("50 mm")))
sketch7.addConstraint(Sketcher.Constraint("DistanceX", -1, 1, 0, 2, Q("27.157329 mm")))
sketch7.addConstraint(Sketcher.Constraint("DistanceY", -1, 1, 2, 2, Q("740.346079 mm")))
sketch7.addConstraint(Sketcher.Constraint("DistanceX", -1, 1, 3, 2, Q("46.881238 mm")))
pad7 = doc.addObject("PartDesign::Pad", "Pad006")
body10.addObject(pad7)
pad7.Profile = sketch7
pad7.Type = "TwoLengths"
pad7.Length = 190.9
pad7.Length2 = 190.9
body11 = doc.addObject("PartDesign::Body", "Body010")

sketch8 = doc.addObject("Sketcher::SketchObject", "Sketch007")
body11.addObject(sketch8)
sketch8.AttachmentSupport = (doc.getObject("XZ_Plane010"), [""])
sketch8.MapMode = "FlatFace"
sketch8.AttachmentOffset = App.Placement(Vector(0, 0, -215.9), App.Rotation())
add_polygon(sketch8, [(66, 664), (46, 662), (51, 612), (71, 614)])
sketch8.addConstraint(Sketcher.Constraint("Perpendicular", 0, 1))
sketch8.addConstraint(Sketcher.Constraint("Perpendicular", 1, 2))
sketch8.addConstraint(Sketcher.Constraint("Perpendicular", 2, 3))
sketch8.addConstraint(Sketcher.Constraint("Distance", 0, Q("20 mm")))
sketch8.addConstraint(Sketcher.Constraint("Distance", 1, Q("50 mm")))
sketch8.addConstraint(Sketcher.Constraint("DistanceX", -1, 1, 2, 2, Q("70.892852 mm")))
sketch8.addConstraint(Sketcher.Constraint("DistanceY", -1, 1, 2, 2, Q("614.019569 mm")))
sketch8.addConstraint(Sketcher.Constraint("DistanceX", -1, 1, 3, 2, Q("65.63319 mm")))
pad8 = doc.addObject("PartDesign::Pad", "Pad007")
body11.addObject(pad8)
pad8.Profile = sketch8
pad8.Type = "TwoLengths"
pad8.Length = 190.9
pad8.Length2 = 190.9
body12 = doc.addObject("PartDesign::Body", "Body011")

sketch9 = doc.addObject("Sketcher::SketchObject", "Sketch008")
body12.addObject(sketch9)
sketch9.AttachmentSupport = (doc.getObject("XZ_Plane011"), [""])
sketch9.MapMode = "FlatFace"
sketch9.AttachmentOffset = App.Placement(Vector(0, 0, -215.9), App.Rotation())
add_polygon(sketch9, [(77, 538), (57, 537), (59, 487), (79, 488)])
sketch9.addConstraint(Sketcher.Constraint("Perpendicular", 0, 1))
sketch9.addConstraint(Sketcher.Constraint("Perpendicular", 1, 2))
sketch9.addConstraint(Sketcher.Constraint("Perpendicular", 2, 3))
sketch9.addConstraint(Sketcher.Constraint("Distance", 0, Q("20 mm")))
sketch9.addConstraint(Sketcher.Constraint("Distance", 1, Q("50 mm")))
sketch9.addConstraint(Sketcher.Constraint("DistanceX", -1, 1, 0, 2, Q("56.65882 mm")))
sketch9.addConstraint(Sketcher.Constraint("DistanceY", -1, 1, 0, 2, Q("536.734221 mm")))
sketch9.addConstraint(Sketcher.Constraint("DistanceX", -1, 1, 1, 2, Q("58.896328 mm")))
pad9 = doc.addObject("PartDesign::Pad", "Pad008")
body12.addObject(pad9)
pad9.Profile = sketch9
pad9.Type = "TwoLengths"
pad9.Length = 190.9
pad9.Length2 = 190.9
body13 = doc.addObject("PartDesign::Body", "Body012")

sketch10 = doc.addObject("Sketcher::SketchObject", "Sketch009")
body13.addObject(sketch10)
sketch10.AttachmentSupport = (doc.getObject("XZ_Plane012"), [""])
sketch10.MapMode = "FlatFace"
sketch10.AttachmentOffset = App.Placement(Vector(0, 0, -215.9), App.Rotation())
add_polygon(sketch10, [(283, 413), (272, 388), (383, 388), (383, 413)])
sketch10.addConstraint(Sketcher.Constraint("Horizontal", 1))
sketch10.addConstraint(Sketcher.Constraint("Vertical", 2))
sketch10.addConstraint(Sketcher.Constraint("Horizontal", 3))
sketch10.addConstraint(Sketcher.Constraint("DistanceX", 3, 2, 3, 1, Q("100 mm")))
sketch10.addConstraint(Sketcher.Constraint("DistanceY", 2, 1, 2, 2, Q("25 mm")))
sketch10.addConstraint(Sketcher.Constraint("DistanceY", -1, 1, 0, 2, Q("388 mm")))
sketch10.addConstraint(Sketcher.Constraint("Angle", 0, Q("-112.5 deg")))
sketch10.addConstraint(Sketcher.Constraint("DistanceX", -1, 1, 0, 2, Q("272.193838 mm")))
pad10 = doc.addObject("PartDesign::Pad", "Pad009")
body13.addObject(pad10)
pad10.Profile = sketch10
pad10.Type = "TwoLengths"
pad10.Length = 215.9
pad10.Length2 = 215.9
body14 = doc.addObject("PartDesign::Body", "Body013")

sketch11 = doc.addObject("Sketcher::SketchObject", "Sketch010")
body14.addObject(sketch11)
sketch11.AttachmentSupport = (doc.getObject("XZ_Plane013"), [""])
sketch11.MapMode = "FlatFace"
sketch11.AttachmentOffset = App.Placement(Vector(0, 0, -215.9), App.Rotation())
add_polygon(sketch11, [(205, 225), (194, 200), (358, 200), (358, 225)])
sketch11.addConstraint(Sketcher.Constraint("Horizontal", 1))
sketch11.addConstraint(Sketcher.Constraint("Vertical", 2))
sketch11.addConstraint(Sketcher.Constraint("Horizontal", 3))
sketch11.addConstraint(Sketcher.Constraint("DistanceY", 2, 1, 2, 2, Q("25 mm")))
sketch11.addConstraint(Sketcher.Constraint("DistanceY", -1, 1, 0, 2, Q("200 mm")))
sketch11.addConstraint(Sketcher.Constraint("Angle", 0, Q("-112.5 deg")))
sketch11.addConstraint(Sketcher.Constraint("DistanceX", 1, 1, 1, 2, Q("163.227489 mm")))
sketch11.addConstraint(Sketcher.Constraint("DistanceX", -1, 1, 0, 2, Q("194.321688 mm")))
pad11 = doc.addObject("PartDesign::Pad", "Pad010")
body14.addObject(pad11)
pad11.Profile = sketch11
pad11.Type = "TwoLengths"
pad11.Length = 165.9
pad11.Length2 = 165.9
body15 = doc.addObject("PartDesign::Body", "Body014")

sketch12 = doc.addObject("Sketcher::SketchObject", "Sketch011")
body15.addObject(sketch12)
sketch12.AttachmentSupport = (doc.getObject("XZ_Plane014"), [""])
sketch12.MapMode = "FlatFace"
sketch12.AttachmentOffset = App.Placement(Vector(0, 0, -50), App.Rotation())
add_polygon(sketch12, [(272, 388), (129, 42), (129, 0), (144, 0), (305, 388)])
sketch12.addConstraint(Sketcher.Constraint("Vertical", 1))
sketch12.addConstraint(Sketcher.Constraint("Horizontal", 2))
sketch12.addConstraint(Sketcher.Constraint("Horizontal", 4))
sketch12.addConstraint(Sketcher.Constraint("PointOnObject", 1, 2, -1))
sketch12.addConstraint(Sketcher.Constraint("Parallel", 0, 3))
sketch12.addConstraint(Sketcher.Constraint("DistanceX", -1, 1, 0, 2, Q("129 mm")))
sketch12.addConstraint(Sketcher.Constraint("DistanceY", -1, 1, 3, 2, Q("388 mm")))
sketch12.addConstraint(Sketcher.Constraint("Angle", 0, Q("-112.5 deg")))
sketch12.addConstraint(Sketcher.Constraint("DistanceX", 2, 1, 2, 2, Q("14.950742 mm")))
sketch12.addConstraint(Sketcher.Constraint("Distance", 0, Q("374.18353 mm")))
pad12 = doc.addObject("PartDesign::Pad", "Pad011")
body15.addObject(pad12)
pad12.Profile = sketch12
pad12.Length = 25
body16 = doc.addObject("PartDesign::Body", "Body015")
doc.recompute()

mirroring4 = doc.addObject("Part::Mirroring", "Mirroring003")
mirroring4.Source = body15
mirroring4.Base = Vector(0, 215.9, 0)
mirroring4.Normal = Vector(0, -1, 0)
body16.BaseFeature = mirroring4
doc.recompute()
body17 = doc.addObject("PartDesign::Body", "Body016")

sketch13 = doc.addObject("Sketcher::SketchObject", "Sketch012")
body17.addObject(sketch13)
sketch13.AttachmentSupport = (doc.getObject("XZ_Plane016"), [""])
sketch13.MapMode = "FlatFace"
sketch13.AttachmentOffset = App.Placement(Vector(0, 0, -50), App.Rotation())
add_polygon(sketch13, [(383, 0), (363, 388), (305, 388), (268, 300), (333, 0)])
sketch13.addConstraint(Sketcher.Constraint("Horizontal", 1))
sketch13.addConstraint(Sketcher.Constraint("Horizontal", 4))
sketch13.addConstraint(Sketcher.Constraint("PointOnObject", 3, 2, -1))
sketch13.addConstraint(Sketcher.Constraint("DistanceX", 4, 1, 4, 2, Q("50 mm")))
sketch13.addConstraint(Sketcher.Constraint("DistanceY", -1, 1, 0, 2, Q("388 mm")))
sketch13.addConstraint(Sketcher.Constraint("DistanceY", -1, 1, 2, 2, Q("300 mm")))
sketch13.addConstraint(Sketcher.Constraint("Angle", 2, Q("-112.5 deg")))
sketch13.addConstraint(Sketcher.Constraint("DistanceX", 3, 2, 0, 2, Q("30 mm")))
sketch13.addConstraint(Sketcher.Constraint("Distance", 3, Q("306.820649 mm")))
sketch13.addConstraint(Sketcher.Constraint("DistanceX", -1, 1, 2, 2, Q("268.21481 mm")))
pad13 = doc.addObject("PartDesign::Pad", "Pad012")
body17.addObject(pad13)
pad13.Profile = sketch13
pad13.Length = 25
body18 = doc.addObject("PartDesign::Body", "Body017")
doc.recompute()

mirroring5 = doc.addObject("Part::Mirroring", "Mirroring004")
mirroring5.Source = body17
mirroring5.Base = Vector(0, 215.9, 0)
mirroring5.Normal = Vector(0, -1, 0)
body18.BaseFeature = mirroring5
doc.recompute()

doc.recompute()
